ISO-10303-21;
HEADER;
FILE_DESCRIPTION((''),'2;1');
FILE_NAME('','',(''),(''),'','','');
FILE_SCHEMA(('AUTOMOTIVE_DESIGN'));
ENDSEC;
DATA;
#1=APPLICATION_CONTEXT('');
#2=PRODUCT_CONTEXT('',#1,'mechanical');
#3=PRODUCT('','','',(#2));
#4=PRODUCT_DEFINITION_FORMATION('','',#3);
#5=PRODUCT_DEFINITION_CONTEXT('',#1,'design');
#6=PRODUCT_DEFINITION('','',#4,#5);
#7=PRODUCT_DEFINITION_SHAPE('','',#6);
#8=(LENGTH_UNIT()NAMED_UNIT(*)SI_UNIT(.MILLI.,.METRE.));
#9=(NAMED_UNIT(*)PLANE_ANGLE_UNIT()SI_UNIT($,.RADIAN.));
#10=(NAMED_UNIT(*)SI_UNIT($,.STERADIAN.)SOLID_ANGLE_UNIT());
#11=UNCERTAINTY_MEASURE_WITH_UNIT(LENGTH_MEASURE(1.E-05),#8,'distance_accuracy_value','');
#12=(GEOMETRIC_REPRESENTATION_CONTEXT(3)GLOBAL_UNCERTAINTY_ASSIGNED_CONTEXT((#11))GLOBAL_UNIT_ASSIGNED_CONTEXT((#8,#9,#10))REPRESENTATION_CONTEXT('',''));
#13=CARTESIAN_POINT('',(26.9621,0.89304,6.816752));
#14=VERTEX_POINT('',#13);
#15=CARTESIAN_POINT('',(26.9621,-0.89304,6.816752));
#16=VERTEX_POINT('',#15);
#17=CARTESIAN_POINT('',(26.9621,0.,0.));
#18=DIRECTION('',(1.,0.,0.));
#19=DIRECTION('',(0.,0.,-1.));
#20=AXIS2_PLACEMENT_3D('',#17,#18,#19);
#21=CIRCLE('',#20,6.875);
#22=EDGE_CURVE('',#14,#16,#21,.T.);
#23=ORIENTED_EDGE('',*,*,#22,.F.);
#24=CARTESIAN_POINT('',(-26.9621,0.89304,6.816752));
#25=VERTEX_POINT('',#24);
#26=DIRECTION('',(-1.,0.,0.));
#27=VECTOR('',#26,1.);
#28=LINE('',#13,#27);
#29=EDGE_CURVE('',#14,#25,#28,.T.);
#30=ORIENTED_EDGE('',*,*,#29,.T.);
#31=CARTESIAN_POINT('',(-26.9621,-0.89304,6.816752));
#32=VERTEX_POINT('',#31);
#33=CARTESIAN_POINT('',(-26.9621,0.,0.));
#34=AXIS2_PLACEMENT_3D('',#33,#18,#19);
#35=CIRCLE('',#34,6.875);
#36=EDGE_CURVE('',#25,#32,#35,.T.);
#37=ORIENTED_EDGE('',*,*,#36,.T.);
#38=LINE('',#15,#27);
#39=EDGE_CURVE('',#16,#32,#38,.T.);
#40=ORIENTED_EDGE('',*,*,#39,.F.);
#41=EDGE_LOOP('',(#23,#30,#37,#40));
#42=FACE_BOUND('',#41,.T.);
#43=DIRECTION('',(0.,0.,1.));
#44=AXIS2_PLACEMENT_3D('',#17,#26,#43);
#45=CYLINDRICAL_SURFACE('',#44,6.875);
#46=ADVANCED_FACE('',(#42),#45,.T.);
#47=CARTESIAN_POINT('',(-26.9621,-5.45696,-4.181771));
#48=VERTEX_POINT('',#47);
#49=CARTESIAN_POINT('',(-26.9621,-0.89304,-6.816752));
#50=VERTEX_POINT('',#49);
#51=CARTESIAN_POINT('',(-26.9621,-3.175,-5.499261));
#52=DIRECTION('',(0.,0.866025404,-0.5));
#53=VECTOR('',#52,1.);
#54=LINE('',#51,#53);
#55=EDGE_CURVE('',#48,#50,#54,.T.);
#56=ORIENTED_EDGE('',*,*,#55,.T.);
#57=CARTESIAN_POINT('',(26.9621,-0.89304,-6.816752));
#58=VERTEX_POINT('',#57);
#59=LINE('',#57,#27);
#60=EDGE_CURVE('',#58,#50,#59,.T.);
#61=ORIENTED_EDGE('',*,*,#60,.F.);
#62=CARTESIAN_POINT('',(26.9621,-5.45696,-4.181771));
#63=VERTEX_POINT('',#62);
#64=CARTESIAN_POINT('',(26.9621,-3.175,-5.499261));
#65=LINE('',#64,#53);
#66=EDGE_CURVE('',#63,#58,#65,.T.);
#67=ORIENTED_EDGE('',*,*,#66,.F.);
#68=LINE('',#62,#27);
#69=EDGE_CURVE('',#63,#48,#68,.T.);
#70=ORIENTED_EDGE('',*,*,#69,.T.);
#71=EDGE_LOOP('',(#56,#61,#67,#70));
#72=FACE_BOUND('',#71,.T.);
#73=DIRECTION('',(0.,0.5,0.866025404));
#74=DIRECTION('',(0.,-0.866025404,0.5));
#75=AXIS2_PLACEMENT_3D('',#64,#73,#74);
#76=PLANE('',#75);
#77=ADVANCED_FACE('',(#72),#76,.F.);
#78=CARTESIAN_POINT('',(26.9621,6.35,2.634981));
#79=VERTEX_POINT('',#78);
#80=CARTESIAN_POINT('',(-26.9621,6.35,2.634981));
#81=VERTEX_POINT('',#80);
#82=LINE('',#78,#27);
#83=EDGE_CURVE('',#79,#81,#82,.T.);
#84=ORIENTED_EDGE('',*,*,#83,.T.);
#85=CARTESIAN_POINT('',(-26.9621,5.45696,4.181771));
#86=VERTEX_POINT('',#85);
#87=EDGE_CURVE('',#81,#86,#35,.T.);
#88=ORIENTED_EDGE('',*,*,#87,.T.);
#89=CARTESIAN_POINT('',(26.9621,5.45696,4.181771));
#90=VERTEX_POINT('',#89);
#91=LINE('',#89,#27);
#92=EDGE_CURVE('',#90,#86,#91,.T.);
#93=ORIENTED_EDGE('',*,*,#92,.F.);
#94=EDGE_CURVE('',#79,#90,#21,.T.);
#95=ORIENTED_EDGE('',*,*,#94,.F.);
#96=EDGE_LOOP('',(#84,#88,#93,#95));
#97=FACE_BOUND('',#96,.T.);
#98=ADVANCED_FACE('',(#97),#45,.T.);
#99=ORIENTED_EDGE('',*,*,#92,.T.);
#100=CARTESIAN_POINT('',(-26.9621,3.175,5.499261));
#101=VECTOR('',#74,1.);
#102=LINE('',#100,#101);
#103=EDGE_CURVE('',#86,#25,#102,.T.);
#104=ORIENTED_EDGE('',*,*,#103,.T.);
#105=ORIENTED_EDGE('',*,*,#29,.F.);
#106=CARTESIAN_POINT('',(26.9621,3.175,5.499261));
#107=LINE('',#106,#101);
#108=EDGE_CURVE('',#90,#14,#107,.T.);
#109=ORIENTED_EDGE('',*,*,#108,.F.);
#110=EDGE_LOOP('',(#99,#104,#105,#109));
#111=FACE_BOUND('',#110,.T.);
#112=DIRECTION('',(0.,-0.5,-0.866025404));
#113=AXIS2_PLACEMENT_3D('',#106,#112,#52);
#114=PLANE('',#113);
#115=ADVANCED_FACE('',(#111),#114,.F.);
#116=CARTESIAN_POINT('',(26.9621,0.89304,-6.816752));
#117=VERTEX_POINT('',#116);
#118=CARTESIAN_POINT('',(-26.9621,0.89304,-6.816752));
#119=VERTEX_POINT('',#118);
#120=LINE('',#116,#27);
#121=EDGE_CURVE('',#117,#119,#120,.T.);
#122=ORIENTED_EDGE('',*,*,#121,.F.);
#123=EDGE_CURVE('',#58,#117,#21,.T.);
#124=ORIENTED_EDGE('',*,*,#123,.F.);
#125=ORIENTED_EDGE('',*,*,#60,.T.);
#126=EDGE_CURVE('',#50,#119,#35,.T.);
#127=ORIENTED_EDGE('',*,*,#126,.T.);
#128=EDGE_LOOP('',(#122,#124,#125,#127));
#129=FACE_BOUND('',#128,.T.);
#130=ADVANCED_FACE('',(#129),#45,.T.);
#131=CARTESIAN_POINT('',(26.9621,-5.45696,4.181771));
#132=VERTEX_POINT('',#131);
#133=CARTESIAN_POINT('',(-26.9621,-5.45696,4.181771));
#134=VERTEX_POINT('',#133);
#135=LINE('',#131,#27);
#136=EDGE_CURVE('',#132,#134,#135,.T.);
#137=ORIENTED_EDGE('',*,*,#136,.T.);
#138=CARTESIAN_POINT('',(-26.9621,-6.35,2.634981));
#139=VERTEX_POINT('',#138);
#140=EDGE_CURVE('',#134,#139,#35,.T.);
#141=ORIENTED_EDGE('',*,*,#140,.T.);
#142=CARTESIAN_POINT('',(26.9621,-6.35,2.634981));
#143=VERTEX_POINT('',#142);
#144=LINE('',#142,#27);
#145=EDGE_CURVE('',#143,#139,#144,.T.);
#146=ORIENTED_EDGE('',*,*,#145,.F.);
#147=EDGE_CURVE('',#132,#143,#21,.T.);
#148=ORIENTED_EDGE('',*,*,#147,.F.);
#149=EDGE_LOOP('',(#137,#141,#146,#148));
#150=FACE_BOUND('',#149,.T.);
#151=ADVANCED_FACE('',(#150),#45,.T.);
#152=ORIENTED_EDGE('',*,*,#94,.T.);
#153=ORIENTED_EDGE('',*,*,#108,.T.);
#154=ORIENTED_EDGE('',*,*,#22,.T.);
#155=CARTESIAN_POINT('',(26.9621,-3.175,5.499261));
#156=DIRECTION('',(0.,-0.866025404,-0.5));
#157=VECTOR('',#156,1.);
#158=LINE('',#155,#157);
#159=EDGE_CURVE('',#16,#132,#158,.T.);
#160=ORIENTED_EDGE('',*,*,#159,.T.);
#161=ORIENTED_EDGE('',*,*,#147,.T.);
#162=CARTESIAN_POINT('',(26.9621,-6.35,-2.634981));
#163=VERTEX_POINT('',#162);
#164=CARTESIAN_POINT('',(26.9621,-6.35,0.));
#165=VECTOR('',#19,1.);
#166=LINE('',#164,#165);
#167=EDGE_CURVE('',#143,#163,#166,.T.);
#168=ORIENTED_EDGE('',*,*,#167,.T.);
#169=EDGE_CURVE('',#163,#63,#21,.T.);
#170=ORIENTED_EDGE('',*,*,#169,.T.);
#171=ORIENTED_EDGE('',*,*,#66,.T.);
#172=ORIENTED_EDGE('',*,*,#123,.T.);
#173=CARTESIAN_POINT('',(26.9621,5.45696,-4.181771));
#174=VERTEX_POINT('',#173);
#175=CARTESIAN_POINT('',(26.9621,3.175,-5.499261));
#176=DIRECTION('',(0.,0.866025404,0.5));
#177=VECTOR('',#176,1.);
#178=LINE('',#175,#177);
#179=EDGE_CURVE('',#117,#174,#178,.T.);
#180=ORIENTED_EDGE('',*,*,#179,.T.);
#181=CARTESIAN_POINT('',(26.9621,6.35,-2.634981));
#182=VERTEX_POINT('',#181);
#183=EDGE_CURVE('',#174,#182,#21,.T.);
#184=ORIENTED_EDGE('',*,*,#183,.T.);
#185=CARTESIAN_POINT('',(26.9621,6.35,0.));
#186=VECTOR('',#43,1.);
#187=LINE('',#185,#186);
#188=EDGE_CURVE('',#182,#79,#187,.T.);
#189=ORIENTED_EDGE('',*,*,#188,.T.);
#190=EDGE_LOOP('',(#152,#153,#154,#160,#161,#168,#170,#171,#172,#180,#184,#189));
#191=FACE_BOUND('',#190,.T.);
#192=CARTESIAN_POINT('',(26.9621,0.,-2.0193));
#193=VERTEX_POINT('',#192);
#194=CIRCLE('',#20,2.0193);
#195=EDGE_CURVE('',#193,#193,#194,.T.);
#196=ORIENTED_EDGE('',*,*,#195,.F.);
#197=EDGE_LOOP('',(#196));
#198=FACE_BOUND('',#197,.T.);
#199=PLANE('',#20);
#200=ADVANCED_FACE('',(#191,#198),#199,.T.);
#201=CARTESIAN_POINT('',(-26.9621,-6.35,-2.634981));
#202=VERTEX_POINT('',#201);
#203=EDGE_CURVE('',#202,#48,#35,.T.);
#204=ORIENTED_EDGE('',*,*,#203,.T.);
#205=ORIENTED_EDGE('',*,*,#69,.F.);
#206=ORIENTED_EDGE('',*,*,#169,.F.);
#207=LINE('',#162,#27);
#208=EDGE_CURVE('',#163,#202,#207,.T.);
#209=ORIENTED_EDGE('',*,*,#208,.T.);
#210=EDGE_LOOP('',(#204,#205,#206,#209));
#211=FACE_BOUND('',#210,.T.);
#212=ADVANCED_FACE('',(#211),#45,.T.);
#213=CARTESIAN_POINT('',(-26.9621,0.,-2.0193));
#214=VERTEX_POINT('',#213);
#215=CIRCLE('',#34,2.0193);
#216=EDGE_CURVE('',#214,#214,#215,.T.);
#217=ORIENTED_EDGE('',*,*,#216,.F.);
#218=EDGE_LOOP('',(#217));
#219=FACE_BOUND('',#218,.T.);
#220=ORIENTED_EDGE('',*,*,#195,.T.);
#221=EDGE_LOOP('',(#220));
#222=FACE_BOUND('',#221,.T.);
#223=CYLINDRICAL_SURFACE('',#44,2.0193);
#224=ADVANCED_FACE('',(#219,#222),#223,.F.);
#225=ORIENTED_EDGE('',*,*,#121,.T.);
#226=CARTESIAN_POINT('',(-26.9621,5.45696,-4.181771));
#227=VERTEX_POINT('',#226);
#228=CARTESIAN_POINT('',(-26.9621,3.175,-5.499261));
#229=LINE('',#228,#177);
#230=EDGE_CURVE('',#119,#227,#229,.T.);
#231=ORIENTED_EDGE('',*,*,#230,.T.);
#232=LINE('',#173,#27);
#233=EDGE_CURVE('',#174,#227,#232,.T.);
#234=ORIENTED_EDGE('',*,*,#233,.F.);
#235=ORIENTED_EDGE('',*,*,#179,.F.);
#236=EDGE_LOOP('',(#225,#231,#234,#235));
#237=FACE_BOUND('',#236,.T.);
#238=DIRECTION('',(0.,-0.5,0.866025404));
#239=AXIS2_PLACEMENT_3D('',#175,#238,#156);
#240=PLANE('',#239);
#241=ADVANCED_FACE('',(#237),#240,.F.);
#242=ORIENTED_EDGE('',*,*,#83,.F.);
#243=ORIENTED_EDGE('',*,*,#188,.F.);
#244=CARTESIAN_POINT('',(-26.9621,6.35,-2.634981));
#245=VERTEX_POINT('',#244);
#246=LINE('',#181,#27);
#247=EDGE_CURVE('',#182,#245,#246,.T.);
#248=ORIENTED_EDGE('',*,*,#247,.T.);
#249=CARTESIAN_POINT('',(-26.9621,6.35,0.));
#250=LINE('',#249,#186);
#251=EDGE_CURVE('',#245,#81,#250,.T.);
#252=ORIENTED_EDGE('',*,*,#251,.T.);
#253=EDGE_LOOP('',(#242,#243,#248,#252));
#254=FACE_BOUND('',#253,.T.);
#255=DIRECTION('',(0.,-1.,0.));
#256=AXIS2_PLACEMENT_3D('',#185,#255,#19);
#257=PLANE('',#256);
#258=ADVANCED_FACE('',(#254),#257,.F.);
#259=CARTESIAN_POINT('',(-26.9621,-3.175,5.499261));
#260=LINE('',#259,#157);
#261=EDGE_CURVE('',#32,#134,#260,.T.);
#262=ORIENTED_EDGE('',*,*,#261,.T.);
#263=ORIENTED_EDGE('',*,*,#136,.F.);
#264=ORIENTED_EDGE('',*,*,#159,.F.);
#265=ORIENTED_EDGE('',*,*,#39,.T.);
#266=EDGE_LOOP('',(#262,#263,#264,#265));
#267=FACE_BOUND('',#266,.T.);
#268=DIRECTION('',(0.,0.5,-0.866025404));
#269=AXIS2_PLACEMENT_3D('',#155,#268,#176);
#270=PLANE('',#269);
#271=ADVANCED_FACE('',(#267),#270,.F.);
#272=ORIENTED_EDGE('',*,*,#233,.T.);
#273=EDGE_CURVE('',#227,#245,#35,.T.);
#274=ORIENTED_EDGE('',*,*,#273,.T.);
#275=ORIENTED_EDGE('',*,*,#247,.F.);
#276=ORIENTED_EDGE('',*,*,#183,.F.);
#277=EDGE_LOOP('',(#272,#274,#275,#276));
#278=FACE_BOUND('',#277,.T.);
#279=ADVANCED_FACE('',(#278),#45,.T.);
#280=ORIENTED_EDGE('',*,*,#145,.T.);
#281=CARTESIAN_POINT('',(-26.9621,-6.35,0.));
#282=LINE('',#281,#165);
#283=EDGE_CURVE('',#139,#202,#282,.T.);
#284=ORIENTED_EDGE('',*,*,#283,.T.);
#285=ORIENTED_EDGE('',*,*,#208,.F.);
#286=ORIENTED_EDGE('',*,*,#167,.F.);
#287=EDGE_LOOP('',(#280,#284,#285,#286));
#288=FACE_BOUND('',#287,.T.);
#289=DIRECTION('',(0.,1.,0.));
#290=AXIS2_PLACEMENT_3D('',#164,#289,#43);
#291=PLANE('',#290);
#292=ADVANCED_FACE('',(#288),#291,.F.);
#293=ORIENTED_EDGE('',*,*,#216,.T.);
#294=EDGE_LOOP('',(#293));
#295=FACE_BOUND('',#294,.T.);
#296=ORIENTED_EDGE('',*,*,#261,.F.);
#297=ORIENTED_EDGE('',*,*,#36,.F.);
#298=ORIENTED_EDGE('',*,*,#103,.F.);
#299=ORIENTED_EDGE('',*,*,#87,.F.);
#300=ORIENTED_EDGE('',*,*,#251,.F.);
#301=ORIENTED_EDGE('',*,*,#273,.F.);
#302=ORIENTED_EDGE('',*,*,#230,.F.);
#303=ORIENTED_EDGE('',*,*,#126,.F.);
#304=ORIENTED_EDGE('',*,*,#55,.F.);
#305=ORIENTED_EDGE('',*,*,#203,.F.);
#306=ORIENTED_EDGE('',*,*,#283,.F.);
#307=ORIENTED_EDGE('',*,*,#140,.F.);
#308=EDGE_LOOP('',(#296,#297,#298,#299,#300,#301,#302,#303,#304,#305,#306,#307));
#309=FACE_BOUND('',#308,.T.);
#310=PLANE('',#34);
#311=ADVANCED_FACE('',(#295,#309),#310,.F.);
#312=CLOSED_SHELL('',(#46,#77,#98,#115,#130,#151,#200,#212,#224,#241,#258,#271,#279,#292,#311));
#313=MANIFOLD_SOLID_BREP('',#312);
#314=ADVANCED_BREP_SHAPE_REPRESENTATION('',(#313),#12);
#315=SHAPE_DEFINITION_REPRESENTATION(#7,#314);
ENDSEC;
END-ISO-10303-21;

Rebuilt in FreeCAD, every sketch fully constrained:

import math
import FreeCAD as App
import Part
import Sketcher
Q = App.Units.Quantity

doc = App.newDocument("Part")
params = doc.addObject("Spreadsheet::Sheet", "Params")
for row, (alias, value) in enumerate([
    ("sketch1_diameter", "0.159 in"),
    ("pad1_length", "2.123 in"),
], start=1):
    params.set(f"A{row}", alias)
    params.set(f"B{row}", "=" + value)
    params.setAlias(f"B{row}", alias)

body = doc.addObject("PartDesign::Body", "Body")

# Sketch on YZ plane
sketch1 = body.newObject("Sketcher::SketchObject", "Sketch")
sketch1.AttachmentSupport = (doc.getObject("YZ_Plane"), [""])
sketch1.MapMode = "FlatFace"
sketch1.addGeometry([
    Part.ArcOfCircle(Part.Circle(App.Vector(0, 0, 0), App.Vector(0, 0, 1), 6.9), math.radians(-90), math.radians(-82.54)),  # 0
    Part.LineSegment(App.Vector(0.9, -6.8, 0), App.Vector(5.5, -4.2, 0)),  # 1
    Part.ArcOfCircle(Part.Circle(App.Vector(0, 0, 0), App.Vector(0, 0, 1), 6.9), math.radians(-37.46), math.radians(-22.54)),  # 2
    Part.LineSegment(App.Vector(6.3, -2.6, 0), App.Vector(6.3, 2.6, 0)),  # 3
    Part.ArcOfCircle(Part.Circle(App.Vector(0, 0, 0), App.Vector(0, 0, 1), 6.9), math.radians(22.54), math.radians(37.46)),  # 4
    Part.LineSegment(App.Vector(5.5, 4.2, 0), App.Vector(0.9, 6.8, 0)),  # 5
    Part.ArcOfCircle(Part.Circle(App.Vector(0, 0, 0), App.Vector(0, 0, 1), 6.9), math.radians(82.54), math.radians(97.46)),  # 6
    Part.LineSegment(App.Vector(-0.9, 6.8, 0), App.Vector(-5.5, 4.2, 0)),  # 7
    Part.ArcOfCircle(Part.Circle(App.Vector(0, 0, 0), App.Vector(0, 0, 1), 6.9), math.radians(142.54), math.radians(157.46)),  # 8
    Part.LineSegment(App.Vector(-6.3, 2.6, 0), App.Vector(-6.3, -2.6, 0)),  # 9
    Part.ArcOfCircle(Part.Circle(App.Vector(0, 0, 0), App.Vector(0, 0, 1), 6.9), math.radians(-157.46), math.radians(-142.54)),  # 10
    Part.LineSegment(App.Vector(-5.5, -4.2, 0), App.Vector(-0.9, -6.8, 0)),  # 11
    Part.ArcOfCircle(Part.Circle(App.Vector(0, 0, 0), App.Vector(0, 0, 1), 6.9), math.radians(-97.46), math.radians(-90)),  # 12
    Part.Circle(App.Vector(0, 0, 0), App.Vector(0, 0, 1), 2),  # 13
], False)
sketch1.addConstraint([
    Sketcher.Constraint("Coincident", 0, 2, 1, 1),
    Sketcher.Constraint("Coincident", 1, 2, 2, 1),
    Sketcher.Constraint("Coincident", 2, 2, 3, 1),
    Sketcher.Constraint("Coincident", 3, 2, 4, 1),
    Sketcher.Constraint("Coincident", 4, 2, 5, 1),
    Sketcher.Constraint("Coincident", 5, 2, 6, 1),
    Sketcher.Constraint("Coincident", 6, 2, 7, 1),
    Sketcher.Constraint("Coincident", 7, 2, 8, 1),
    Sketcher.Constraint("Coincident", 8, 2, 9, 1),
    Sketcher.Constraint("Coincident", 9, 2, 10, 1),
    Sketcher.Constraint("Coincident", 10, 2, 11, 1),
    Sketcher.Constraint("Coincident", 11, 2, 12, 1),
    Sketcher.Constraint("Tangent", 12, 2, 0, 1),
    Sketcher.Constraint("Vertical", 3),
    Sketcher.Constraint("Vertical", 9),
    Sketcher.Constraint("Coincident", 0, 3, -1, 1),
    Sketcher.Constraint("Coincident", 2, 3, -1, 1),
    Sketcher.Constraint("Coincident", 4, 3, -1, 1),
    Sketcher.Constraint("Coincident", 6, 3, -1, 1),
    Sketcher.Constraint("Coincident", 8, 3, -1, 1),
    Sketcher.Constraint("Coincident", 10, 3, -1, 1),
    Sketcher.Constraint("Coincident", 13, 3, -1, 1),
    Sketcher.Constraint("Equal", 0, 2),
    Sketcher.Constraint("Equal", 2, 4),
    Sketcher.Constraint("Equal", 4, 6),
    Sketcher.Constraint("Equal", 6, 8),
    Sketcher.Constraint("Equal", 8, 10),
    Sketcher.Constraint("Equal", 10, 12),
    Sketcher.Constraint("PointOnObject", 12, 2, -2),
    Sketcher.Constraint("Parallel", 1, 7),
    Sketcher.Constraint("Parallel", 5, 11),
    Sketcher.Constraint("Horizontal", 5, 2, 6, 2),
    Sketcher.Constraint("Horizontal", 4, 2, 7, 2),
    Sketcher.Constraint("Horizontal", 3, 2, 8, 2),
    Sketcher.Constraint("Horizontal", 1, 2, 10, 2),
    Sketcher.Constraint("Vertical", 1, 2, 4, 2),
    Sketcher.Constraint("Diameter", 13, Q("0.159 in")),
    Sketcher.Constraint("Angle", 1, Q("30 deg")),
    Sketcher.Constraint("DistanceX", -1, 1, 2, 2, Q("0.25 in")),
    Sketcher.Constraint("Radius", 0, Q("6.875 mm")),
    Sketcher.Constraint("Distance", 1, Q("5.269962 mm")),
])
sketch1.setExpression("Constraints[36]", "Params.sketch1_diameter")
pad1 = body.newObject("PartDesign::Pad", "Pad")
pad1.Profile = sketch1
pad1.setExpression("Length", "Params.pad1_length")
pad1.Midplane = True

doc.recompute()
